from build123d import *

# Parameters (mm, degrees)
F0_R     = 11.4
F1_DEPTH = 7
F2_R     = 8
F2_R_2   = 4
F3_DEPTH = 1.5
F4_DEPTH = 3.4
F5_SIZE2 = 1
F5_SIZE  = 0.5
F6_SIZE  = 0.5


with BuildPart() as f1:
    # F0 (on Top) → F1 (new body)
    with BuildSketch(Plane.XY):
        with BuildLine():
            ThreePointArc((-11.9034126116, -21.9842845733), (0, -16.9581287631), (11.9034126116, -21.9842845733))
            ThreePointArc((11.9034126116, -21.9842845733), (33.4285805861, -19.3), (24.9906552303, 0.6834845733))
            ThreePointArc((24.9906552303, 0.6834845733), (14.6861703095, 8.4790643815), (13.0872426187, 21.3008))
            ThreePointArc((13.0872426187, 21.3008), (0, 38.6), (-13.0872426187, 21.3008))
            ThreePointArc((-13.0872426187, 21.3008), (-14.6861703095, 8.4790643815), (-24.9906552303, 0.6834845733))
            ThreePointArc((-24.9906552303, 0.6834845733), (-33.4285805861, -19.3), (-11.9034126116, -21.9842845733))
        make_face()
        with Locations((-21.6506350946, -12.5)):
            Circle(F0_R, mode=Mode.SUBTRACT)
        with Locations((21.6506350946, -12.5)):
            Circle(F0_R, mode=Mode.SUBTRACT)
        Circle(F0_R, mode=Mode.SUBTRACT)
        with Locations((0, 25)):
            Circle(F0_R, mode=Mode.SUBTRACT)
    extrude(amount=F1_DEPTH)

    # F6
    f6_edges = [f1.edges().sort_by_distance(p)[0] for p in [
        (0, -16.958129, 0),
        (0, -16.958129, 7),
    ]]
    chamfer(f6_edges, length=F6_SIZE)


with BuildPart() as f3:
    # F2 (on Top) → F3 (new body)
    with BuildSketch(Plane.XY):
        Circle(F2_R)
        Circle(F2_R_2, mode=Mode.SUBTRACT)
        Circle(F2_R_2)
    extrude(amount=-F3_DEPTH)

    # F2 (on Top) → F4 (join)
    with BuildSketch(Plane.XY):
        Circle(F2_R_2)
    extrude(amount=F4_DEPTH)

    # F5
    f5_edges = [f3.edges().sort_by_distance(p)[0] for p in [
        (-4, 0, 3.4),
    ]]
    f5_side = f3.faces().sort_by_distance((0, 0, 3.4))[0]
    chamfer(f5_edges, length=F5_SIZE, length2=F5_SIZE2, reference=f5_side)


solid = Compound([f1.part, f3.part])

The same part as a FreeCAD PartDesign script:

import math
import FreeCAD as App
import Part
import Sketcher
Q = App.Units.Quantity


def edges_at(feature, points):
    """Names of the edges that pass closest to the given points."""
    edges = feature.Shape.Edges
    near = lambda p: min(range(len(edges)), key=lambda i: edges[i].distToShape(Part.Vertex(*p))[0])
    return sorted({f"Edge{near(p) + 1}" for p in points})

doc = App.newDocument("Part")
body = doc.addObject("PartDesign::Body", "Body")

sketch1 = body.newObject("Sketcher::SketchObject", "Sketch")
sketch1.AttachmentSupport = (doc.getObject("XY_Plane"), [""])
sketch1.MapMode = "FlatFace"
sketch1.addGeometry(Part.ArcOfCircle(Part.Circle(App.Vector(0, -34, 0), App.Vector(0, 0, 1), 17), math.radians(44), math.radians(136)), False)
sketch1.addGeometry(Part.ArcOfCircle(Part.Circle(App.Vector(22, -12, 0), App.Vector(0, 0, 1), 14), math.radians(-136), math.radians(76)), False)
sketch1.addGeometry(Part.ArcOfCircle(Part.Circle(App.Vector(29, 17, 0), App.Vector(0, 0, 1), 17), math.radians(164), math.radians(256)), False)
sketch1.addGeometry(Part.ArcOfCircle(Part.Circle(App.Vector(0, 25, 0), App.Vector(0, 0, 1), 14), math.radians(-16), math.radians(196)), False)
sketch1.addGeometry(Part.ArcOfCircle(Part.Circle(App.Vector(-29, 17, 0), App.Vector(0, 0, 1), 17), math.radians(-76), math.radians(16)), False)
sketch1.addGeometry(Part.ArcOfCircle(Part.Circle(App.Vector(-22, -12, 0), App.Vector(0, 0, 1), 14), math.radians(104), math.radians(316)), False)
sketch1.addGeometry(Part.Circle(App.Vector(-22, -12, 0), App.Vector(0, 0, 1), 11), False)
sketch1.addGeometry(Part.Circle(App.Vector(22, -12, 0), App.Vector(0, 0, 1), 11), False)
sketch1.addGeometry(Part.Circle(App.Vector(0, 0, 0), App.Vector(0, 0, 1), 11), False)
sketch1.addGeometry(Part.Circle(App.Vector(0, 25, 0), App.Vector(0, 0, 1), 11), False)
sketch1.addConstraint(Sketcher.Constraint("Tangent", 0, 1, 1, 1))
sketch1.addConstraint(Sketcher.Constraint("Tangent", 1, 2, 2, 2))
sketch1.addConstraint(Sketcher.Constraint("Tangent", 2, 1, 3, 1))
sketch1.addConstraint(Sketcher.Constraint("Tangent", 3, 2, 4, 2))
sketch1.addConstraint(Sketcher.Constraint("Tangent", 4, 1, 5, 1))
sketch1.addConstraint(Sketcher.Constraint("Tangent", 5, 2, 0, 2))
sketch1.addConstraint(Sketcher.Constraint("Coincident", 8, 3, -1, 1))
sketch1.addConstraint(Sketcher.Constraint("Coincident", 6, 3, 5, 3))
sketch1.addConstraint(Sketcher.Constraint("Coincident", 7, 3, 1, 3))
sketch1.addConstraint(Sketcher.Constraint("Coincident", 9, 3, 3, 3))
sketch1.addConstraint(Sketcher.Constraint("Equal", 0, 2))
sketch1.addConstraint(Sketcher.Constraint("Equal", 1, 3))
sketch1.addConstraint(Sketcher.Constraint("Equal", 2, 4))
sketch1.addConstraint(Sketcher.Constraint("Equal", 3, 5))
sketch1.addConstraint(Sketcher.Constraint("Equal", 6, 7))
sketch1.addConstraint(Sketcher.Constraint("Equal", 7, 8))
sketch1.addConstraint(Sketcher.Constraint("Equal", 8, 9))
sketch1.addConstraint(Sketcher.Constraint("Symmetric", 2, 3, 4, 3, -2))
sketch1.addConstraint(Sketcher.Constraint("PointOnObject", 0, 3, -2))
sketch1.addConstraint(Sketcher.Constraint("Diameter", 6, Q("22.8 mm")))
sketch1.addConstraint(Sketcher.Constraint("Radius", 1, Q("13.6 mm")))
sketch1.addConstraint(Sketcher.Constraint("DistanceY", -1, 1, 3, 3, Q("25 mm")))
sketch1.addConstraint(Sketcher.Constraint("DistanceY", 1, 3, -1, 1, Q("12.5 mm")))
sketch1.addConstraint(Sketcher.Constraint("Radius", 0, Q("16.608466 mm")))
sketch1.addConstraint(Sketcher.Constraint("DistanceY", -1, 1, 2, 1, Q("21.3008 mm")))
pad1 = body.newObject("PartDesign::Pad", "Pad")
pad1.Profile = sketch1
pad1.Length = 7
doc.recompute()

chamfer = body.newObject("PartDesign::Chamfer", "Chamfer")
chamfer.Base = (pad1, edges_at(pad1, [(0, -16.958, 0), (0, -16.958, 7)]))
chamfer.Size = 0.5
body2 = doc.addObject("PartDesign::Body", "Body001")

sketch2 = body2.newObject("Sketcher::SketchObject", "Sketch001")
sketch2.AttachmentSupport = (doc.getObject("XY_Plane001"), [""])
sketch2.MapMode = "FlatFace"
sketch2.addGeometry(Part.Circle(App.Vector(0, 0, 0), App.Vector(0, 0, 1), 8), False)
sketch2.addConstraint(Sketcher.Constraint("Coincident", 0, 3, -1, 1))
sketch2.addConstraint(Sketcher.Constraint("Diameter", 0, Q("16 mm")))
pad2 = body2.newObject("PartDesign::Pad", "Pad001")
pad2.Profile = sketch2
pad2.Length = 1.5
pad2.Reversed = True

sketch3 = body2.newObject("Sketcher::SketchObject", "Sketch002")
sketch3.AttachmentSupport = (doc.getObject("XY_Plane001"), [""])
sketch3.MapMode = "FlatFace"
sketch3.addGeometry(Part.Circle(App.Vector(0, 0, 0), App.Vector(0, 0, 1), 4), False)
sketch3.addConstraint(Sketcher.Constraint("Coincident", 0, 3, -1, 1))
sketch3.addConstraint(Sketcher.Constraint("Diameter", 0, Q("8 mm")))
pad3 = body2.newObject("PartDesign::Pad", "Pad002")
pad3.Profile = sketch3
pad3.Length = 3.4
doc.recompute()

chamfer2 = body2.newObject("PartDesign::Chamfer", "Chamfer001")
chamfer2.Base = (pad3, edges_at(pad3, [(-4, 0, 3.4)]))
chamfer2.ChamferType = "Two distances"
chamfer2.Size = 0.5
chamfer2.Size2 = 1
chamfer2.FlipDirection = True

doc.recompute()
